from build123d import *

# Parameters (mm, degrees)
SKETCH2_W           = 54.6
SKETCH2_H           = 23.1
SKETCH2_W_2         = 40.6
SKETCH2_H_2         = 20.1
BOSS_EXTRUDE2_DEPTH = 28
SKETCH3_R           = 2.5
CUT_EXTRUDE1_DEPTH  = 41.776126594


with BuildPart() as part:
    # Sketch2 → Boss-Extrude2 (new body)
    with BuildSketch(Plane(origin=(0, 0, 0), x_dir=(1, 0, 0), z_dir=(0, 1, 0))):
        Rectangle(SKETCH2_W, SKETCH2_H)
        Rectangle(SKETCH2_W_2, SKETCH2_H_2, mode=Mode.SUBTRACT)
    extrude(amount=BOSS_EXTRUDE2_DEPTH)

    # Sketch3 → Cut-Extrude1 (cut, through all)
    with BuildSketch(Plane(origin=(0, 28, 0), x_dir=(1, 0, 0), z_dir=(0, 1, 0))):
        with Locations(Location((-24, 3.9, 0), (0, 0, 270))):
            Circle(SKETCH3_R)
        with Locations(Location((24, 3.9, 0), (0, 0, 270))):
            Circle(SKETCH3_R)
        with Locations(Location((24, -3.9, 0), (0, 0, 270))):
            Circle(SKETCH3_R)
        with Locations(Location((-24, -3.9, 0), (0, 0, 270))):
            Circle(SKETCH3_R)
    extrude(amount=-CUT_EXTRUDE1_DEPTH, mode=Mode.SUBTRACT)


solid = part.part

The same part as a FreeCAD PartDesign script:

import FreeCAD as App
import Part
import Sketcher
Q = App.Units.Quantity


def add_polygon(sketch, points):
    """Adds a closed chain of lines whose ends are joined by coincident constraints."""
    first, n = sketch.GeometryCount, len(points)
    for a, b in zip(points, points[1:] + points[:1]):
        sketch.addGeometry(Part.LineSegment(App.Vector(*a, 0), App.Vector(*b, 0)), False)
    for i in range(n):
        sketch.addConstraint(Sketcher.Constraint("Coincident", first + i, 2, first + (i + 1) % n, 1))

doc = App.newDocument("Part")
body = doc.addObject("PartDesign::Body", "Body")

# Sketch on XZ plane
sketch1 = doc.addObject("Sketcher::SketchObject", "Sketch")
body.addObject(sketch1)
sketch1.AttachmentSupport = (doc.XZ_Plane, [""])
sketch1.MapMode = "FlatFace"
add_polygon(sketch1, [(-27, -12), (-27, 12), (27, 12), (27, -12)])  # lines 0-3
add_polygon(sketch1, [(20, 10), (-20, 10), (-20, -10), (20, -10)])  # lines 4-7
sketch1.addConstraint(Sketcher.Constraint("Vertical", 0))
sketch1.addConstraint(Sketcher.Constraint("Horizontal", 1))
sketch1.addConstraint(Sketcher.Constraint("Vertical", 2))
sketch1.addConstraint(Sketcher.Constraint("Horizontal", 3))
sketch1.addConstraint(Sketcher.Constraint("Horizontal", 4))
sketch1.addConstraint(Sketcher.Constraint("Vertical", 5))
sketch1.addConstraint(Sketcher.Constraint("Horizontal", 6))
sketch1.addConstraint(Sketcher.Constraint("Vertical", 7))
sketch1.addConstraint(Sketcher.Constraint("Symmetric", 0, 2, 2, 2, -1, 1))
sketch1.addConstraint(Sketcher.Constraint("Symmetric", 4, 2, 6, 2, -1, 1))
sketch1.addConstraint(Sketcher.Constraint("DistanceX", 1, 1, 1, 2, Q("54.6 mm")))
sketch1.addConstraint(Sketcher.Constraint("DistanceX", 4, 2, 4, 1, Q("40.6 mm")))
sketch1.addConstraint(Sketcher.Constraint("DistanceY", 0, 1, 0, 2, Q("23.1 mm")))
sketch1.addConstraint(Sketcher.Constraint("DistanceY", 5, 2, 5, 1, Q("20.1 mm")))
pad1 = doc.addObject("PartDesign::Pad", "Pad")
body.addObject(pad1)
pad1.Profile = sketch1
pad1.Length = 28
pad1.Reversed = True

# Sketch on XZ plane
sketch2 = doc.addObject("Sketcher::SketchObject", "Sketch001")
body.addObject(sketch2)
sketch2.AttachmentSupport = (doc.XZ_Plane, [""])
sketch2.MapMode = "FlatFace"
sketch2.AttachmentOffset = App.Placement(App.Vector(0, 0, -28), App.Rotation())
sketch2.addGeometry(Part.Circle(App.Vector(-24, -3.9, 0), App.Vector(0, 0, 1), 2.5), False)
sketch2.addGeometry(Part.Circle(App.Vector(24, -3.9, 0), App.Vector(0, 0, 1), 2.5), False)
sketch2.addGeometry(Part.Circle(App.Vector(24, 3.9, 0), App.Vector(0, 0, 1), 2.5), False)
sketch2.addGeometry(Part.Circle(App.Vector(-24, 3.9, 0), App.Vector(0, 0, 1), 2.5), False)
sketch2.addConstraint(Sketcher.Constraint("Equal", 0, 1))
sketch2.addConstraint(Sketcher.Constraint("Equal", 1, 2))
sketch2.addConstraint(Sketcher.Constraint("Equal", 2, 3))
sketch2.addConstraint(Sketcher.Constraint("Symmetric", 0, 3, 2, 3, -1, 1))
sketch2.addConstraint(Sketcher.Constraint("Symmetric", 1, 3, 3, 3, -1, 1))
sketch2.addConstraint(Sketcher.Constraint("Symmetric", 0, 3, 1, 3, -2))
sketch2.addConstraint(Sketcher.Constraint("Diameter", 0, Q("5 mm")))
sketch2.addConstraint(Sketcher.Constraint("DistanceX", 0, 3, -1, 1, Q("24 mm")))
sketch2.addConstraint(Sketcher.Constraint("DistanceY", 0, 3, -1, 1, Q("3.9 mm")))
pocket1 = doc.addObject("PartDesign::Pocket", "Pocket")
body.addObject(pocket1)
pocket1.Profile = sketch2
pocket1.Type = "ThroughAll"
pocket1.Reversed = True

doc.recompute()
